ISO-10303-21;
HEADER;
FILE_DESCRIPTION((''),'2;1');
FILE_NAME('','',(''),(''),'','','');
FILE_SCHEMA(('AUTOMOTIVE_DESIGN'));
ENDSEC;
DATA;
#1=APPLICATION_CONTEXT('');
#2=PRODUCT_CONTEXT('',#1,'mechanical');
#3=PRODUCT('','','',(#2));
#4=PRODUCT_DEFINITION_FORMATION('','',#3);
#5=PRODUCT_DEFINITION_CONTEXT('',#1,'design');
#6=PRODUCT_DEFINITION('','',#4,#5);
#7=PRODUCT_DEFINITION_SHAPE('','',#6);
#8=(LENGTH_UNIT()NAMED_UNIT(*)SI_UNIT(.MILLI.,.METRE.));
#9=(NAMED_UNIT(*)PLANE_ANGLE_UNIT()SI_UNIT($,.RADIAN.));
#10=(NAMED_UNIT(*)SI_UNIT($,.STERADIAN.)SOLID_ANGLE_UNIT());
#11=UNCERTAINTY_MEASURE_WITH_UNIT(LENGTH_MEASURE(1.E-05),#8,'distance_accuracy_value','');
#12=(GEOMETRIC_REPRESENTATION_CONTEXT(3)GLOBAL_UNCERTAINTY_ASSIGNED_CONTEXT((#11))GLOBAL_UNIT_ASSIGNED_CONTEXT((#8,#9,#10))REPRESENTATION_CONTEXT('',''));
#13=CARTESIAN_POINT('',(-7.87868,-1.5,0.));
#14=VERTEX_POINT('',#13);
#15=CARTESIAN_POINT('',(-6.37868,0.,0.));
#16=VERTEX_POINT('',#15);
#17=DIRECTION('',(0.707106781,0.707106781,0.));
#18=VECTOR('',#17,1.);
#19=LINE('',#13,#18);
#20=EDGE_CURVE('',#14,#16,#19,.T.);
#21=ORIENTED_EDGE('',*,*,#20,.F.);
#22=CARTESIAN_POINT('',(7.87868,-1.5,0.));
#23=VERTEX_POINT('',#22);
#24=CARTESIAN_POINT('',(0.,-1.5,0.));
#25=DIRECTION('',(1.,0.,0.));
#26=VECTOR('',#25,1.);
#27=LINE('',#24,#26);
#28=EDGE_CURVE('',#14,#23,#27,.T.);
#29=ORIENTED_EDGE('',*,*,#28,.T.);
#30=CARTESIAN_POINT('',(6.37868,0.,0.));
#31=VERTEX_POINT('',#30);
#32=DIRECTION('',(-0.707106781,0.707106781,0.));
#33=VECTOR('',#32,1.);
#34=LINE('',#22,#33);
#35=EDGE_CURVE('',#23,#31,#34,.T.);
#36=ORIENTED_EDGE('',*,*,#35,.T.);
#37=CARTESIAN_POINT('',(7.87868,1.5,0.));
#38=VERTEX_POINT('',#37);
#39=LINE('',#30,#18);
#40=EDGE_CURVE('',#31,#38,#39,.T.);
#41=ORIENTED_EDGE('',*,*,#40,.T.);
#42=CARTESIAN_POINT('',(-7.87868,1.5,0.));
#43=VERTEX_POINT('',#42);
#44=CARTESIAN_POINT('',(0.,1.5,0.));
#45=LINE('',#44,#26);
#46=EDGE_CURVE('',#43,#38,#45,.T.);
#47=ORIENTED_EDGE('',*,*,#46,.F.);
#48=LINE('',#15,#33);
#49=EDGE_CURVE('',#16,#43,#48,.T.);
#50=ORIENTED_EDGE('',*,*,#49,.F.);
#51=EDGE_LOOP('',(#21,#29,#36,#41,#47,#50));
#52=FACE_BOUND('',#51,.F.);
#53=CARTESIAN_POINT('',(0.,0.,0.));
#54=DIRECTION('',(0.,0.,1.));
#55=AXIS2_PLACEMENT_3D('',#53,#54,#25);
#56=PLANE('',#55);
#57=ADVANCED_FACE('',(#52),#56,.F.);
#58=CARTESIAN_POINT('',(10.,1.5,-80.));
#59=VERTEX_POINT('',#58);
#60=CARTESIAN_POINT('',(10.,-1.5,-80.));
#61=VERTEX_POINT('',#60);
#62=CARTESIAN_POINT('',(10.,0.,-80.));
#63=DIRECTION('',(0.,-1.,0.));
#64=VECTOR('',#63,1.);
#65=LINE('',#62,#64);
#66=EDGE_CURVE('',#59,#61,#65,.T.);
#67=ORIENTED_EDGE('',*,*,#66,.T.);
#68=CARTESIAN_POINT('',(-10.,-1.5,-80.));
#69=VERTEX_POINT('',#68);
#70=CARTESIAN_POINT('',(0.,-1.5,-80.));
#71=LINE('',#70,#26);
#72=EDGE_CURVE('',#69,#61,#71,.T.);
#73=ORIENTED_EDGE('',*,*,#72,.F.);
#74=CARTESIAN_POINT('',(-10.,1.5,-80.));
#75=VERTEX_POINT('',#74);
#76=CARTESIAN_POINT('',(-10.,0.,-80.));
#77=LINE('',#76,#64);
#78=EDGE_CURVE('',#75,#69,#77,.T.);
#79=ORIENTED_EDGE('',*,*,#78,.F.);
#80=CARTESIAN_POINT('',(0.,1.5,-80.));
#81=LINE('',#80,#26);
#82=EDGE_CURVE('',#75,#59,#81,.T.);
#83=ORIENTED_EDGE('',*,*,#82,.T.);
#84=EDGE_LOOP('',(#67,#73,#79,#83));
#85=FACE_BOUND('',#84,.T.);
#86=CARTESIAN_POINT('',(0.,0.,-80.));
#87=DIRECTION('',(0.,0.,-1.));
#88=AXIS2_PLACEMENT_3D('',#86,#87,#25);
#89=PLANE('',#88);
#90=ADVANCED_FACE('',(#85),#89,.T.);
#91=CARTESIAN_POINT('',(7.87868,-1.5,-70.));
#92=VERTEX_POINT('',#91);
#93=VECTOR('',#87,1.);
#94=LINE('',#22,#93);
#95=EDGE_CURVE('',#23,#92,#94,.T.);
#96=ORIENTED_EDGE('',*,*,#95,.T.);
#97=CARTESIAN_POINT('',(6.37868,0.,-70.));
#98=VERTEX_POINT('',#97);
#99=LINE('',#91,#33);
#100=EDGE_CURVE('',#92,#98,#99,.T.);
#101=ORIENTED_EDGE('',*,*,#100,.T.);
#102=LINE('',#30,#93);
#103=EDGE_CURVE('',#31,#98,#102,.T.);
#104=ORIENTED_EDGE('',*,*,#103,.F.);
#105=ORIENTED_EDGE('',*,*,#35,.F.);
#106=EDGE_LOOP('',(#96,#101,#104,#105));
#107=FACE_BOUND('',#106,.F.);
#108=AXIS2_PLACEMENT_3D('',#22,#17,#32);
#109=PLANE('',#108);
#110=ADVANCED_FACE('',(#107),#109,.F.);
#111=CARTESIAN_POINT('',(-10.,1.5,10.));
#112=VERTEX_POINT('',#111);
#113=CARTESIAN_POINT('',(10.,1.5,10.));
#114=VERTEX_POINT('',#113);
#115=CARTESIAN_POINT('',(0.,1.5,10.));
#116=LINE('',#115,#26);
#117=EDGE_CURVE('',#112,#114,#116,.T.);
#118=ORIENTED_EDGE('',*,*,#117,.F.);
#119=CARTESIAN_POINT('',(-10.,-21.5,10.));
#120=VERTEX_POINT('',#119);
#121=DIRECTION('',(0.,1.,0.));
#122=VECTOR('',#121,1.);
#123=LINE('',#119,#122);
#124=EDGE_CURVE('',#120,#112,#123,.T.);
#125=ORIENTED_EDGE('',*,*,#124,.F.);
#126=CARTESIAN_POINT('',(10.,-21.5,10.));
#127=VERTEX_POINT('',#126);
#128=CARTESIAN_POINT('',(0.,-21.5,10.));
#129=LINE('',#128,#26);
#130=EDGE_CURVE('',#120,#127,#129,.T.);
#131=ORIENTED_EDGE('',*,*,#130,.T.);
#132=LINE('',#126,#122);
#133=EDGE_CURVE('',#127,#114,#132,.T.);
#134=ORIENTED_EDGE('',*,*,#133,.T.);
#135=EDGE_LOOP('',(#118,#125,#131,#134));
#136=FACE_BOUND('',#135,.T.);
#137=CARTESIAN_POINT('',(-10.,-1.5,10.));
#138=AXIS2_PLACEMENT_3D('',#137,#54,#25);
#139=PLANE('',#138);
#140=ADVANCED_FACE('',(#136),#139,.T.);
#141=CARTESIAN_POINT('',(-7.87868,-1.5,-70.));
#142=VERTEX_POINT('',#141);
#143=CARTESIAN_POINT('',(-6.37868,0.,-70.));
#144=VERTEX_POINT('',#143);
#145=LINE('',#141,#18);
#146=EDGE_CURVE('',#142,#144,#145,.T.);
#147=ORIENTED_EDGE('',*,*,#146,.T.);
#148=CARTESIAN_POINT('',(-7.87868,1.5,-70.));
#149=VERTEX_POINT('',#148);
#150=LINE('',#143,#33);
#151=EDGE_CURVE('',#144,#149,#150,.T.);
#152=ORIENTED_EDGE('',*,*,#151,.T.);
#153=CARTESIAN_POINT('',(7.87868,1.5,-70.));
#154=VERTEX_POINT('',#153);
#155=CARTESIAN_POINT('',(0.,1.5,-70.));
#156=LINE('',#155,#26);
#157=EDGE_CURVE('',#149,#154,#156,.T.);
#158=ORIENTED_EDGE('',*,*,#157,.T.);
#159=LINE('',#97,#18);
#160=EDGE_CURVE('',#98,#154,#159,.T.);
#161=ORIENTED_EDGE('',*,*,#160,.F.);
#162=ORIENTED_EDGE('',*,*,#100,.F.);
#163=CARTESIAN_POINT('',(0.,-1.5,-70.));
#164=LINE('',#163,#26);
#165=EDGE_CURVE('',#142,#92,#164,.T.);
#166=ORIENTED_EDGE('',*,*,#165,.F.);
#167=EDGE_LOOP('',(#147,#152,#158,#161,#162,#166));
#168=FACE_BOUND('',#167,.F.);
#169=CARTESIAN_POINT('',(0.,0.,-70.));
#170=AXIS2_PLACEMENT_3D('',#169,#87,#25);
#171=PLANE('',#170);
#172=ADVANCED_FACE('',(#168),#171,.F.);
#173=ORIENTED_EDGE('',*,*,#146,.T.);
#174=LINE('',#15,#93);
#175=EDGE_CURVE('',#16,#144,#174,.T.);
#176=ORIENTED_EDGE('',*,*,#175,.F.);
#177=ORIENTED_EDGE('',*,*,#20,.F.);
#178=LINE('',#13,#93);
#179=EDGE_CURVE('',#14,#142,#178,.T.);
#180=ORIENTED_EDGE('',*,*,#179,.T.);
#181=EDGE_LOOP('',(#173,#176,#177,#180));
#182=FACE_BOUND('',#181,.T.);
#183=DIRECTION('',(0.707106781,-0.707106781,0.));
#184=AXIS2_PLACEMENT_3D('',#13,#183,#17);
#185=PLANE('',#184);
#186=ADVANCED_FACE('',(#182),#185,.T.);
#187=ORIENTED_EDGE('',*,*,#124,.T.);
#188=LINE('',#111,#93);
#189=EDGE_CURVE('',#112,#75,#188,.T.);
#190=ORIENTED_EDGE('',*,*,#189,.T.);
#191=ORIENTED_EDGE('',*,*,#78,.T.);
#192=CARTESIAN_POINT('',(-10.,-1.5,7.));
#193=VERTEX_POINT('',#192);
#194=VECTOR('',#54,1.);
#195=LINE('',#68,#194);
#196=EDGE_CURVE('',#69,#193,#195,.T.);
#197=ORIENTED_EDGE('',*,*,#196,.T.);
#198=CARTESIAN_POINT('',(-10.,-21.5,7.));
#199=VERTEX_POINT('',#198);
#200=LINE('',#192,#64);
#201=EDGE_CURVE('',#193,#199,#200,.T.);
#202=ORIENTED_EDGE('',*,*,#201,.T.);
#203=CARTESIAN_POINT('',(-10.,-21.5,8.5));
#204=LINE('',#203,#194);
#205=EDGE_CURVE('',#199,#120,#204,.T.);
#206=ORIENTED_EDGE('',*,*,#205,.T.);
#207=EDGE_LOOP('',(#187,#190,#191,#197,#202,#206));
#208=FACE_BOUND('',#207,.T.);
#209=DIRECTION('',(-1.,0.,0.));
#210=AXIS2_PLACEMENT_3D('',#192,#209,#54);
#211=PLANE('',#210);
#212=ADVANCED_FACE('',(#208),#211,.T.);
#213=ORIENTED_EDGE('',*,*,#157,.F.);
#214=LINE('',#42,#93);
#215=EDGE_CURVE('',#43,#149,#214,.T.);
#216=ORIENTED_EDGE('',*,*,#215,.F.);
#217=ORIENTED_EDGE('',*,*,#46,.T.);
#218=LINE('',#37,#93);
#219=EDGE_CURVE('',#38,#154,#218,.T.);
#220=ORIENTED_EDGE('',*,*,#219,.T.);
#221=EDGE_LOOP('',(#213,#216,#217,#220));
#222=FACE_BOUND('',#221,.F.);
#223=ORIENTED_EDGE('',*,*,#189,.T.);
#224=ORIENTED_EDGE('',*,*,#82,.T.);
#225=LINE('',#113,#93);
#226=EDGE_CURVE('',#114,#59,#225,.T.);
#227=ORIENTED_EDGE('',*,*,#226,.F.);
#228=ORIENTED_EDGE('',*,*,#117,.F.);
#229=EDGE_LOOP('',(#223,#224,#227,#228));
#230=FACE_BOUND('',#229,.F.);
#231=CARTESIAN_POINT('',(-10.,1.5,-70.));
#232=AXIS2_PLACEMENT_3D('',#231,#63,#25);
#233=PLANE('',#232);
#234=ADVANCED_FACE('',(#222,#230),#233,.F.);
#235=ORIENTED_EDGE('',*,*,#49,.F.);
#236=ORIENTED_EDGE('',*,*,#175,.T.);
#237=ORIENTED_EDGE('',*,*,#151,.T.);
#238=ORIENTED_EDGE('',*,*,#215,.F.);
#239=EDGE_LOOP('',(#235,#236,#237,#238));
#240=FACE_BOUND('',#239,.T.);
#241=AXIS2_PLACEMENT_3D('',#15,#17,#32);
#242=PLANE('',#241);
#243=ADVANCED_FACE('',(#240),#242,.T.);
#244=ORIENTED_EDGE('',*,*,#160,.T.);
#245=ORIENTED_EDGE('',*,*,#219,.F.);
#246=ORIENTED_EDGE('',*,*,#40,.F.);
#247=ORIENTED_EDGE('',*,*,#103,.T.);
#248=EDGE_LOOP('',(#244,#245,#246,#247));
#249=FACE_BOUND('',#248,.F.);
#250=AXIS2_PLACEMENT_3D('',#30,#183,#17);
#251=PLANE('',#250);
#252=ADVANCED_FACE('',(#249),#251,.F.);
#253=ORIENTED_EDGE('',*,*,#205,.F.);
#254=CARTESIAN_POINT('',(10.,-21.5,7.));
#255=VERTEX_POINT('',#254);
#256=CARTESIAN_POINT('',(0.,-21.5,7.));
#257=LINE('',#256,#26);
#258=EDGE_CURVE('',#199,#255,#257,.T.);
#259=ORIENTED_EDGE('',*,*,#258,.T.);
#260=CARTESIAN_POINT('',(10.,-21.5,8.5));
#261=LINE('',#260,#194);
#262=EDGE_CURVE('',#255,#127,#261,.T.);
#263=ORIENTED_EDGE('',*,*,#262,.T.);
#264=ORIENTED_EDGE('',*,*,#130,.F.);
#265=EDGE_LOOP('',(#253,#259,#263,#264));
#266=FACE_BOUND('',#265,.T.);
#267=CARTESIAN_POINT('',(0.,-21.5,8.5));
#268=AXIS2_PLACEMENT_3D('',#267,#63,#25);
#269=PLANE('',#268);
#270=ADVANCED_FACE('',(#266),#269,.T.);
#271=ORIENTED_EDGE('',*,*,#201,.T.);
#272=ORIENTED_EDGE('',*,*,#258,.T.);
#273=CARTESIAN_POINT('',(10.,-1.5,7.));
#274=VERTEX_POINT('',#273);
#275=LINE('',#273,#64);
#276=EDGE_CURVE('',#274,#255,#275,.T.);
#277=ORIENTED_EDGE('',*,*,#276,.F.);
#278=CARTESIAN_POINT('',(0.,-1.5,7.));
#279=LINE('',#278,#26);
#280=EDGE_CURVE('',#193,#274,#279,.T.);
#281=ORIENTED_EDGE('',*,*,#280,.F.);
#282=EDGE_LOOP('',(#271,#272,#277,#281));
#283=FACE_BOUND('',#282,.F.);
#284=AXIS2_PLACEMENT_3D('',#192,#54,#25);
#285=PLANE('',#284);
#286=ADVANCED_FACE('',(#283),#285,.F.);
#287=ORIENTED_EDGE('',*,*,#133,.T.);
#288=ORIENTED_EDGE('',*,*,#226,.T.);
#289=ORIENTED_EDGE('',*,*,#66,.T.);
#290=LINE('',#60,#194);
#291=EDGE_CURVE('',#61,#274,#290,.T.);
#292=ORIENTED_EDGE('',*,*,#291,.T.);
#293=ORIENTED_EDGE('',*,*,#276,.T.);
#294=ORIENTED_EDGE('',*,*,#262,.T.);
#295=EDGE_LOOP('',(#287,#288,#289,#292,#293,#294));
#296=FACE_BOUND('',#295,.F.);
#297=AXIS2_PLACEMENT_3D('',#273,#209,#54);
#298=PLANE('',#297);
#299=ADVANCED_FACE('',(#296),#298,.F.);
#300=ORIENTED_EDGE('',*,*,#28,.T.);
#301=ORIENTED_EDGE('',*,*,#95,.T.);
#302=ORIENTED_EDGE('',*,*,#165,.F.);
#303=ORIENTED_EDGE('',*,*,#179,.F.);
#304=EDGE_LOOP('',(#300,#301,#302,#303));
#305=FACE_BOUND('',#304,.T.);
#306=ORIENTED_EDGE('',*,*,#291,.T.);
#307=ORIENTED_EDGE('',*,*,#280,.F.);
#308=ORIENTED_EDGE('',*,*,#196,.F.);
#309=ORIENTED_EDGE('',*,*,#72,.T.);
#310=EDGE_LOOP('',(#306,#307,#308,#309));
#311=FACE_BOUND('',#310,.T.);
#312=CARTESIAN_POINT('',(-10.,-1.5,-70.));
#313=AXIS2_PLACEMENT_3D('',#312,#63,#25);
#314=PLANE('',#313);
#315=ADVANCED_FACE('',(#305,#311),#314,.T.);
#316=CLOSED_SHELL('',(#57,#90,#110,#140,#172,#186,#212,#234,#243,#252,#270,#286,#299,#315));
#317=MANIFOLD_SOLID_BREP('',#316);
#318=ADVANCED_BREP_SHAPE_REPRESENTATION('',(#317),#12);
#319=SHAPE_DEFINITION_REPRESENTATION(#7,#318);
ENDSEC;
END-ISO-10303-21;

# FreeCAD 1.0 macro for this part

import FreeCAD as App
import Part
import Sketcher
from FreeCAD import Vector
Q = App.Units.Quantity


def add_polygon(sketch, points):
    """Adds a closed chain of lines whose ends are joined by coincident constraints."""
    first, n = sketch.GeometryCount, len(points)
    for a, b in zip(points, points[1:] + points[:1]):
        sketch.addGeometry(Part.LineSegment(App.Vector(*a, 0), App.Vector(*b, 0)), False)
    for i in range(n):
        sketch.addConstraint(Sketcher.Constraint("Coincident", first + i, 2, first + (i + 1) % n, 1))

doc = App.newDocument("Part")
body = doc.addObject("PartDesign::Body", "Body")

sketch1 = doc.addObject("Sketcher::SketchObject", "Sketch")
body.addObject(sketch1)
sketch1.AttachmentSupport = (doc.XY_Plane, [""])
sketch1.MapMode = "FlatFace"
add_polygon(sketch1, [(-10, 1.5), (-10, -1.5), (10, -1.5), (10, 1.5)])
sketch1.addConstraint([
    Sketcher.Constraint("Vertical", 0),
    Sketcher.Constraint("Horizontal", 1),
    Sketcher.Constraint("Vertical", 2),
    Sketcher.Constraint("Horizontal", 3),
    Sketcher.Constraint("Symmetric", 0, 2, 2, 2, -1, 1),
    Sketcher.Constraint("DistanceX", 1, 1, 1, 2, Q("20 mm")),
    Sketcher.Constraint("DistanceY", 0, 2, 0, 1, Q("3 mm")),
])
pad1 = doc.addObject("PartDesign::Pad", "Pad")
body.addObject(pad1)
pad1.Profile = sketch1
pad1.Length = 10

sketch2 = doc.addObject("Sketcher::SketchObject", "Sketch001")
body.addObject(sketch2)
sketch2.AttachmentSupport = (doc.XY_Plane, [""])
sketch2.MapMode = "FlatFace"
add_polygon(sketch2, [(-6.4, 0), (-7.9, -1.5), (-10, -1.5), (-10, 1.5), (-7.9, 1.5)])
add_polygon(sketch2, [(7.9, -1.5), (6.4, 0), (7.9, 1.5), (10, 1.5), (10, -1.5)])
sketch2.addConstraint([
    Sketcher.Constraint("Horizontal", 1),
    Sketcher.Constraint("Vertical", 2),
    Sketcher.Constraint("Horizontal", 3),
    Sketcher.Constraint("Horizontal", 7),
    Sketcher.Constraint("Vertical", 8),
    Sketcher.Constraint("Horizontal", 9),
    Sketcher.Constraint("Symmetric", 4, 2, 5, 2, -1, 1),
    Sketcher.Constraint("Symmetric", 0, 2, 6, 2, -1, 1),
    Sketcher.Constraint("Symmetric", 2, 2, 8, 2, -1, 1),
    Sketcher.Constraint("Symmetric", 3, 2, 6, 2, -2),
    Sketcher.Constraint("PointOnObject", 4, 2, -1),
    Sketcher.Constraint("Perpendicular", 0, 4),
    Sketcher.Constraint("Parallel", 4, 5),
    Sketcher.Constraint("DistanceY", 2, 1, 2, 2, Q("3 mm")),
    Sketcher.Constraint("DistanceX", 1, 2, -1, 1, Q("10 mm")),
    Sketcher.Constraint("DistanceX", 1, 2, 1, 1, Q("2.12132 mm")),
])
pad2 = doc.addObject("PartDesign::Pad", "Pad001")
body.addObject(pad2)
pad2.Profile = sketch2
pad2.Length = 70
pad2.Reversed = True

sketch3 = doc.addObject("Sketcher::SketchObject", "Sketch002")
body.addObject(sketch3)
sketch3.AttachmentSupport = (doc.XY_Plane, [""])
sketch3.MapMode = "FlatFace"
sketch3.AttachmentOffset = App.Placement(Vector(0, 0, -70), App.Rotation())
add_polygon(sketch3, [(-10, -1.5), (-10, 1.5), (10, 1.5), (10, -1.5)])
sketch3.addConstraint([
    Sketcher.Constraint("Vertical", 0),
    Sketcher.Constraint("Horizontal", 1),
    Sketcher.Constraint("Vertical", 2),
    Sketcher.Constraint("Horizontal", 3),
    Sketcher.Constraint("Symmetric", 0, 2, 2, 2, -1, 1),
    Sketcher.Constraint("DistanceX", 1, 1, 1, 2, Q("20 mm")),
    Sketcher.Constraint("DistanceY", 0, 1, 0, 2, Q("3 mm")),
])
pad3 = doc.addObject("PartDesign::Pad", "Pad002")
body.addObject(pad3)
pad3.Profile = sketch3
pad3.Length = 10
pad3.Reversed = True

sketch4 = doc.addObject("Sketcher::SketchObject", "Sketch003")
body.addObject(sketch4)
sketch4.AttachmentSupport = (doc.XZ_Plane, [""])
sketch4.MapMode = "FlatFace"
sketch4.AttachmentOffset = App.Placement(Vector(0, 0, 1.5), App.Rotation())
add_polygon(sketch4, [(-10, 10), (-10, 7), (10, 7), (10, 10)])
sketch4.addConstraint([
    Sketcher.Constraint("Vertical", 0),
    Sketcher.Constraint("Horizontal", 1),
    Sketcher.Constraint("Vertical", 2),
    Sketcher.Constraint("Horizontal", 3),
    Sketcher.Constraint("DistanceX", 1, 1, 1, 2, Q("20 mm")),
    Sketcher.Constraint("DistanceY", 0, 2, 0, 1, Q("3 mm")),
    Sketcher.Constraint("DistanceX", 0, 2, -1, 1, Q("10 mm")),
    Sketcher.Constraint("DistanceY", -1, 1, 0, 2, Q("7 mm")),
])
pad4 = doc.addObject("PartDesign::Pad", "Pad003")
body.addObject(pad4)
pad4.Profile = sketch4
pad4.Length = 20

doc.recompute()
